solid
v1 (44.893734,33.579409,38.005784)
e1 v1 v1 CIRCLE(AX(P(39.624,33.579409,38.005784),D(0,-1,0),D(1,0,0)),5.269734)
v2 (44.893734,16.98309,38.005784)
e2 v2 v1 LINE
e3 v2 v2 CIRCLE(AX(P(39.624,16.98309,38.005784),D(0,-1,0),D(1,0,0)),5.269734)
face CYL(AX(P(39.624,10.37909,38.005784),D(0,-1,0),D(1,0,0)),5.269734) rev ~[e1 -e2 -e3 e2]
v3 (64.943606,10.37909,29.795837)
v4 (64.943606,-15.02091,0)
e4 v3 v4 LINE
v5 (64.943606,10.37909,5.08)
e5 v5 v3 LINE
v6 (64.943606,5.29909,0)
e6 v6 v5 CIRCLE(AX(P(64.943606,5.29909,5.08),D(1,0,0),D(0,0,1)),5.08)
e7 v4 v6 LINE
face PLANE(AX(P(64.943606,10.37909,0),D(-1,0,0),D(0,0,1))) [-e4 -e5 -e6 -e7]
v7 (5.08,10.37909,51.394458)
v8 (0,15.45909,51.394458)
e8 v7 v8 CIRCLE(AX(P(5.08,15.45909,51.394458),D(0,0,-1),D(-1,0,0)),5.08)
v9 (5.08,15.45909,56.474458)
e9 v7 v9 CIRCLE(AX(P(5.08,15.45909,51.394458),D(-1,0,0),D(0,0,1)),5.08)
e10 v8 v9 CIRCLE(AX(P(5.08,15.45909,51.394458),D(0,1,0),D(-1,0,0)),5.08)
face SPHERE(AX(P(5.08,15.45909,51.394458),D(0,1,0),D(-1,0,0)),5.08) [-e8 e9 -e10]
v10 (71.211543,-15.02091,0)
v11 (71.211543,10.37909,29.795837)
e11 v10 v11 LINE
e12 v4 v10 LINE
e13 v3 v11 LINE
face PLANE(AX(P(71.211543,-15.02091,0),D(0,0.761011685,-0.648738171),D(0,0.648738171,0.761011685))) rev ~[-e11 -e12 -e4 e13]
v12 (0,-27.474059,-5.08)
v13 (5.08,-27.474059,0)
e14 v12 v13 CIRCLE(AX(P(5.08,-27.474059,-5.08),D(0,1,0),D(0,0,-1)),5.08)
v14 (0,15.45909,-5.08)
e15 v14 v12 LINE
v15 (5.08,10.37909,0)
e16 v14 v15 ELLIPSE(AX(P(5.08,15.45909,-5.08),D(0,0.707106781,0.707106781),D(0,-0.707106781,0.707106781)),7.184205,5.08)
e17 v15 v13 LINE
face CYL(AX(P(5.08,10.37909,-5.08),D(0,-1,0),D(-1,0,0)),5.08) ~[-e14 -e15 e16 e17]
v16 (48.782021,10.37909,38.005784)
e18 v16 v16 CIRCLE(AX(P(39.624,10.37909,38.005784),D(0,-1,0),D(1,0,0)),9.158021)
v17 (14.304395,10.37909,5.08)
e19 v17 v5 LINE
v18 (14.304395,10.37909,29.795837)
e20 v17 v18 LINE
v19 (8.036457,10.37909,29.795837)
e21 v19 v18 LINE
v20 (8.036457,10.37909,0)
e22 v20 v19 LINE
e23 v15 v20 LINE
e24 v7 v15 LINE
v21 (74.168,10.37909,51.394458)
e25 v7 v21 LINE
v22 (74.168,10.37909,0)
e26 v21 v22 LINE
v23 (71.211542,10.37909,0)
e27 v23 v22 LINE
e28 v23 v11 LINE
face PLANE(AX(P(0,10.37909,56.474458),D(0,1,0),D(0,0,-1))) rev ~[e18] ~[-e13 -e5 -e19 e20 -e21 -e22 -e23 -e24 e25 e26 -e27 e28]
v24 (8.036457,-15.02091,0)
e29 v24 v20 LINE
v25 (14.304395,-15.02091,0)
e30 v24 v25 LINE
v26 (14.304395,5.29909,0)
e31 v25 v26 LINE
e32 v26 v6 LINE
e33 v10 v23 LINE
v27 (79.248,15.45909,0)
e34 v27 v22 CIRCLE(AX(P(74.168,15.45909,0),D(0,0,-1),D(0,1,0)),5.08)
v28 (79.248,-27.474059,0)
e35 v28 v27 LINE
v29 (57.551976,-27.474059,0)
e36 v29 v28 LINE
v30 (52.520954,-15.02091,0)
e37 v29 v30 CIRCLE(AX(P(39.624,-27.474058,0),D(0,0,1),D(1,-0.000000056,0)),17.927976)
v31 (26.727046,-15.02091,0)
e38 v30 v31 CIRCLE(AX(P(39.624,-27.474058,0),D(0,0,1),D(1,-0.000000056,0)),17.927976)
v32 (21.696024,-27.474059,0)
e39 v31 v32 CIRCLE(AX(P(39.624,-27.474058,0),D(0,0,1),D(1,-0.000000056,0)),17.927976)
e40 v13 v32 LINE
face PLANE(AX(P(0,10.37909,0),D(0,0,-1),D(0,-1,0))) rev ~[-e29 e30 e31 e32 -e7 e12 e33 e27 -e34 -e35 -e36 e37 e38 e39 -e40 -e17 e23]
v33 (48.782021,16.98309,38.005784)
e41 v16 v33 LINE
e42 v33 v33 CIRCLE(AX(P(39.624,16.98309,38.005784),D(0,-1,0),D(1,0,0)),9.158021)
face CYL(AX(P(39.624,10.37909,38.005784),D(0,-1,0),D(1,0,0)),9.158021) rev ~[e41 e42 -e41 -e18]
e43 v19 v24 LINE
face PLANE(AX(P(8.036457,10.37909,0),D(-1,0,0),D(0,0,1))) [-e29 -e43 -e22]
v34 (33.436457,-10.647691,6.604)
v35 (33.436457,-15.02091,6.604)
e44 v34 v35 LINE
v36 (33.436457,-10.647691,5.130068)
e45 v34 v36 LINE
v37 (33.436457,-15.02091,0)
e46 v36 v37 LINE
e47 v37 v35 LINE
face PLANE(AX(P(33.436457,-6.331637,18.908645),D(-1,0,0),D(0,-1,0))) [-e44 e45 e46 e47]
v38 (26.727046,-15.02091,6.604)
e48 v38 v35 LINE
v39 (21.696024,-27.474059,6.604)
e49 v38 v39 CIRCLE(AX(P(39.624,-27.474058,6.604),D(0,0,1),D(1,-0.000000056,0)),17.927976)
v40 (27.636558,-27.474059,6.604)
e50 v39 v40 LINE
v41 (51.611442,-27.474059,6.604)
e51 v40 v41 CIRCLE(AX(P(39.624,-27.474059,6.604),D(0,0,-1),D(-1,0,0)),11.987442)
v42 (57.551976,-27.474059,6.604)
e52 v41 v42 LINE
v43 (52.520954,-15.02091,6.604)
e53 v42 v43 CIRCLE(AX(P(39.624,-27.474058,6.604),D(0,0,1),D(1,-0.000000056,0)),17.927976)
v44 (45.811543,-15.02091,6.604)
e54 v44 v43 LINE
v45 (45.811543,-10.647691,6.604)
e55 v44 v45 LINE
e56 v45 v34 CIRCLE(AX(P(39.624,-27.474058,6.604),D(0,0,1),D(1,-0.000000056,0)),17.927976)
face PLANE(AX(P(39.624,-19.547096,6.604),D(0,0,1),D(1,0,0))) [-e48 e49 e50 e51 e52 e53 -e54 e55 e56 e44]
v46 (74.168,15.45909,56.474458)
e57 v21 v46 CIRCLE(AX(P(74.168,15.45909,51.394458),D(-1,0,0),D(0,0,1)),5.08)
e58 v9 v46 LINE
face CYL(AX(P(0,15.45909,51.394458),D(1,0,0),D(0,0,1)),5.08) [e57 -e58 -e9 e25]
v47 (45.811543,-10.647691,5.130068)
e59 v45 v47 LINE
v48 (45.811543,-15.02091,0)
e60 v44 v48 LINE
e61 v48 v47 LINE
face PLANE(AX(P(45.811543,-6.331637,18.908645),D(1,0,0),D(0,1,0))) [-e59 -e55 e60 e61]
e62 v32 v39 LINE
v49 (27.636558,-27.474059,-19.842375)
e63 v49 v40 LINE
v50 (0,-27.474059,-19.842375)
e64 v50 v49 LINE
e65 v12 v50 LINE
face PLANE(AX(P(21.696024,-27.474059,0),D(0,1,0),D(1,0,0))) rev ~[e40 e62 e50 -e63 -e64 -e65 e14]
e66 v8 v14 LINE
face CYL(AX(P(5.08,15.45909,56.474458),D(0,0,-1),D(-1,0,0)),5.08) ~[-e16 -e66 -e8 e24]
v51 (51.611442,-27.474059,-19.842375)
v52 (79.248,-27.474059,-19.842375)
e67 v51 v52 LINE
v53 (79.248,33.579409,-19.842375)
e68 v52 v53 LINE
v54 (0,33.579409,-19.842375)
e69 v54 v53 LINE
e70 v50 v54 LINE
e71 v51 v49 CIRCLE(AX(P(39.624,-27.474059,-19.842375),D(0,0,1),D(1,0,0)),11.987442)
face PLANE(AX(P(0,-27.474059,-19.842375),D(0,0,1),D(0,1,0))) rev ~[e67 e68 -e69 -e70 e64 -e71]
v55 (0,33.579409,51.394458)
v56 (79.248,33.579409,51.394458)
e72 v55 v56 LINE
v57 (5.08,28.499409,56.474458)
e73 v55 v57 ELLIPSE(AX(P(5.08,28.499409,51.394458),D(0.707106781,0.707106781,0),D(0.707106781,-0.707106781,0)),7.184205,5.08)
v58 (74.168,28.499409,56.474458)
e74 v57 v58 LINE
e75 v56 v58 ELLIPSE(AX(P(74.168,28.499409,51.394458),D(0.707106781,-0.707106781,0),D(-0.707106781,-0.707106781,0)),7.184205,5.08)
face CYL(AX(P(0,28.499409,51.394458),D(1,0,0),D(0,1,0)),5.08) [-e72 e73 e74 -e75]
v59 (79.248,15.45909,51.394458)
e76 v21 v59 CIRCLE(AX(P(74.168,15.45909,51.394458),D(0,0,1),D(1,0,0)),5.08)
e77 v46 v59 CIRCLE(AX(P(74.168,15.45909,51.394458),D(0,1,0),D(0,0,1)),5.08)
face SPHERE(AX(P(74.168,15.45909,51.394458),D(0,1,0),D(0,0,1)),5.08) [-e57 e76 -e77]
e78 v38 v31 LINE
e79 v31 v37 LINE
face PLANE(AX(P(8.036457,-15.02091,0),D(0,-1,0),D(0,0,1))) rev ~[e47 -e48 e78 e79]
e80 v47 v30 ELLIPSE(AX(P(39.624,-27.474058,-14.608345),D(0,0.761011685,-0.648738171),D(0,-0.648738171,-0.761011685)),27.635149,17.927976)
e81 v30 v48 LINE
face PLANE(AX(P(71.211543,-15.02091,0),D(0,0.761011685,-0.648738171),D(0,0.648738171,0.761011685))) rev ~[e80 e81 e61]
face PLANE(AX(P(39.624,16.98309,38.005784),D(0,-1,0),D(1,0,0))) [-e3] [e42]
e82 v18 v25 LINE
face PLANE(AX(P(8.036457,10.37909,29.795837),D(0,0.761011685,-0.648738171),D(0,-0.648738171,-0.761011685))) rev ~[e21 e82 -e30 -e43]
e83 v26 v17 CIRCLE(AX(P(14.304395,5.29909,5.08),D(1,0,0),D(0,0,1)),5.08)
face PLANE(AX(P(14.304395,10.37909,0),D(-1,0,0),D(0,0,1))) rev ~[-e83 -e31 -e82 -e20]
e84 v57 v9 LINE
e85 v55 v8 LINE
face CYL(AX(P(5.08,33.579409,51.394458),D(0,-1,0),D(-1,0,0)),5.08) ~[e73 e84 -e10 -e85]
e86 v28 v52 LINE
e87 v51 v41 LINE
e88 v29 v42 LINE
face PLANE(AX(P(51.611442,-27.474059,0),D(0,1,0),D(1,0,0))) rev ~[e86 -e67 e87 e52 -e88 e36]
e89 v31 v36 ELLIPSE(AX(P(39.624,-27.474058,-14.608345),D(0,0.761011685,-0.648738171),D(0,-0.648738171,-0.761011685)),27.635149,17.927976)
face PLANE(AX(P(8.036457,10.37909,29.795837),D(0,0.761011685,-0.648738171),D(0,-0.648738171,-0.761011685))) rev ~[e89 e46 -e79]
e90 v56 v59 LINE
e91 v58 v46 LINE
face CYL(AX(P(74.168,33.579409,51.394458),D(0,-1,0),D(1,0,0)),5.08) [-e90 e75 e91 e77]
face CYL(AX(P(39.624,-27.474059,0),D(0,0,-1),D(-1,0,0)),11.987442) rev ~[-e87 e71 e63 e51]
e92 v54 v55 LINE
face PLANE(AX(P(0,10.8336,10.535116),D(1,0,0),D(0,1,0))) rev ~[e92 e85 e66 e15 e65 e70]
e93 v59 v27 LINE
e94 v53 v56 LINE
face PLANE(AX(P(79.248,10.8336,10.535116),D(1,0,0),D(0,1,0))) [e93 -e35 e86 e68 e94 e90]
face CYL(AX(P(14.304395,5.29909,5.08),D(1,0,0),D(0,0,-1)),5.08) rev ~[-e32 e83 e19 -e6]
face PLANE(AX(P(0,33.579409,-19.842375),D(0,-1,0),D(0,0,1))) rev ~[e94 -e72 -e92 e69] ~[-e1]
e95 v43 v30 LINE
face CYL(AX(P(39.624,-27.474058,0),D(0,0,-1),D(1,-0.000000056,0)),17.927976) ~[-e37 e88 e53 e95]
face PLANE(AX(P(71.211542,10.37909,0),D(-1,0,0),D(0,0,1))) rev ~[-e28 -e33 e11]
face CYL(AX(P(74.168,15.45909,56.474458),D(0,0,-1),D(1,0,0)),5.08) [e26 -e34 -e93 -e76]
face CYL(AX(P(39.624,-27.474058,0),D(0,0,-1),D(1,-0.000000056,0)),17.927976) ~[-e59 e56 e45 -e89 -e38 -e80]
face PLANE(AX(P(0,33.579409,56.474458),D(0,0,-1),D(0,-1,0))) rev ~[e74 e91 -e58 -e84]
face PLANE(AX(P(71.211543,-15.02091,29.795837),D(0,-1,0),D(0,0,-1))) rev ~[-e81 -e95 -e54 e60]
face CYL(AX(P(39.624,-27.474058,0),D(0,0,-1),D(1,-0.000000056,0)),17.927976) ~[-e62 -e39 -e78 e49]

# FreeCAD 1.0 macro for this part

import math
import FreeCAD as App
import Part
import Sketcher

V = App.Vector
Q = App.Units.Quantity


def edges_at(feature, points):
    """Names of the edges that pass closest to the given points."""
    edges = feature.Shape.Edges
    near = lambda p: min(range(len(edges)), key=lambda i: edges[i].distToShape(Part.Vertex(*p))[0])
    return sorted({f"Edge{near(p) + 1}" for p in points})

doc = App.newDocument("Part")
body = doc.addObject("PartDesign::Body", "Body")

# Sketch on YZ plane
sketch1 = doc.addObject("Sketcher::SketchObject", "Sketch")
body.addObject(sketch1)
sketch1.AttachmentSupport = (doc.YZ_Plane, [""])
sketch1.MapMode = "FlatFace"
sketch1.addGeometry([
    Part.LineSegment(V(33.579409, 56.474458, 0), V(10.37909, 56.474458, 0)),  # 0
    Part.LineSegment(V(10.37909, 56.474458, 0), V(10.37909, 0, 0)),  # 1
    Part.LineSegment(V(10.37909, 0, 0), V(-27.474059, 0, 0)),  # 2
    Part.LineSegment(V(-27.474059, 0, 0), V(-27.474059, -19.842375, 0)),  # 3
    Part.LineSegment(V(-27.474059, -19.842375, 0), V(33.579409, -19.842375, 0)),  # 4
    Part.LineSegment(V(33.579409, -19.842375, 0), V(33.579409, 56.474458, 0)),  # 5
], False)
sketch1.addConstraint([
    Sketcher.Constraint("Coincident", 0, 2, 1, 1),
    Sketcher.Constraint("Coincident", 1, 2, 2, 1),
    Sketcher.Constraint("Coincident", 2, 2, 3, 1),
    Sketcher.Constraint("Coincident", 3, 2, 4, 1),
    Sketcher.Constraint("Coincident", 4, 2, 5, 1),
    Sketcher.Constraint("Coincident", 5, 2, 0, 1),
    Sketcher.Constraint("Horizontal", 0),
    Sketcher.Constraint("Vertical", 1),
    Sketcher.Constraint("Horizontal", 2),
    Sketcher.Constraint("Vertical", 3),
    Sketcher.Constraint("Horizontal", 4),
    Sketcher.Constraint("Vertical", 5),
    Sketcher.Constraint("PointOnObject", 1, 2, -1),
    Sketcher.Constraint("DistanceX", 0, 2, 0, 1, 23.200319),
    Sketcher.Constraint("DistanceX", 2, 2, 2, 1, 37.853149),
    Sketcher.Constraint("DistanceY", 1, 2, 1, 1, 56.474458),
    Sketcher.Constraint("DistanceY", 3, 2, 3, 1, 19.842375),
    Sketcher.Constraint("DistanceX", -1, 1, 0, 2, 10.37909),
])
pad1 = doc.addObject("PartDesign::Pad", "Pad")
body.addObject(pad1)
pad1.Profile = sketch1
pad1.Length = Q("3.12 in")

# Sketch on XZ plane
sketch2 = doc.addObject("Sketcher::SketchObject", "Sketch001")
body.addObject(sketch2)
sketch2.AttachmentSupport = (doc.XZ_Plane, [""])
sketch2.MapMode = "FlatFace"
sketch2.AttachmentOffset = App.Placement(V(0, 0, -10.37909), App.Rotation())
sketch2.addGeometry([
    Part.LineSegment(V(8.036457, 29.795837, 0), V(8.036457, 0, 0)),
    Part.LineSegment(V(8.036457, 0, 0), V(14.304395, 0, 0)),
    Part.LineSegment(V(14.304395, 0, 0), V(14.304395, 29.795837, 0)),
    Part.LineSegment(V(14.304395, 29.795837, 0), V(8.036457, 29.795837, 0)),
], False)
sketch2.addConstraint([
    Sketcher.Constraint("Coincident", 0, 2, 1, 1),
    Sketcher.Constraint("Coincident", 1, 2, 2, 1),
    Sketcher.Constraint("Coincident", 2, 2, 3, 1),
    Sketcher.Constraint("Coincident", 3, 2, 0, 1),
    Sketcher.Constraint("Vertical", 0),
    Sketcher.Constraint("Horizontal", 1),
    Sketcher.Constraint("Vertical", 2),
    Sketcher.Constraint("Horizontal", 3),
    Sketcher.Constraint("PointOnObject", 0, 2, -1),
    Sketcher.Constraint("DistanceX", 1, 1, 1, 2, 6.267937),
    Sketcher.Constraint("DistanceY", 0, 2, 0, 1, 29.795837),
    Sketcher.Constraint("DistanceX", -1, 1, 0, 2, 8.036457),
])
pad2 = doc.addObject("PartDesign::Pad", "Pad001")
body.addObject(pad2)
pad2.Profile = sketch2
pad2.Length = Q("1 in")

# Sketch on XZ plane
sketch3 = doc.addObject("Sketcher::SketchObject", "Sketch002")
body.addObject(sketch3)
sketch3.AttachmentSupport = (doc.XZ_Plane, [""])
sketch3.MapMode = "FlatFace"
sketch3.AttachmentOffset = App.Placement(V(0, 0, -10.37909), App.Rotation())
sketch3.addGeometry([
    Part.LineSegment(V(64.943606, 29.795837, 0), V(64.943606, 0, 0)),
    Part.LineSegment(V(64.943606, 0, 0), V(71.211542, 0, 0)),
    Part.LineSegment(V(71.211542, 0, 0), V(71.211542, 29.795837, 0)),
    Part.LineSegment(V(71.211542, 29.795837, 0), V(64.943606, 29.795837, 0)),
], False)
sketch3.addConstraint([
    Sketcher.Constraint("Coincident", 0, 2, 1, 1),
    Sketcher.Constraint("Coincident", 1, 2, 2, 1),
    Sketcher.Constraint("Coincident", 2, 2, 3, 1),
    Sketcher.Constraint("Coincident", 3, 2, 0, 1),
    Sketcher.Constraint("Vertical", 0),
    Sketcher.Constraint("Horizontal", 1),
    Sketcher.Constraint("Vertical", 2),
    Sketcher.Constraint("Horizontal", 3),
    Sketcher.Constraint("PointOnObject", 0, 2, -1),
    Sketcher.Constraint("DistanceX", 1, 1, 1, 2, 6.267937),
    Sketcher.Constraint("DistanceY", 0, 2, 0, 1, 29.795837),
    Sketcher.Constraint("DistanceX", -1, 1, 0, 2, 64.943606),
])
pad3 = doc.addObject("PartDesign::Pad", "Pad002")
body.addObject(pad3)
pad3.Profile = sketch3
pad3.Length = Q("1 in")

# Sketch on XY plane
sketch4 = doc.addObject("Sketcher::SketchObject", "Sketch003")
body.addObject(sketch4)
sketch4.AttachmentSupport = (doc.XY_Plane, [""])
sketch4.MapMode = "FlatFace"
sketch4.addGeometry([
    Part.ArcOfCircle(Part.Circle(V(39.624, -27.474059, 0), V(0, 0, 1), 11.987442), math.radians(0), math.radians(180)),
    Part.LineSegment(V(27.636558, -27.474059, 0), V(51.611442, -27.474059, 0)),
], False)
sketch4.addConstraint([
    Sketcher.Constraint("Coincident", 0, 1, 1, 2),
    Sketcher.Constraint("Coincident", 1, 1, 0, 2),
    Sketcher.Constraint("Horizontal", 1),
    Sketcher.Constraint("DistanceX", -1, 1, 0, 3, Q("1.56 in")),
    Sketcher.Constraint("Radius", 0, 11.987442),
    Sketcher.Constraint("DistanceY", 0, 3, -1, 1, 27.474059),
    Sketcher.Constraint("DistanceY", 0, 1, -1, 1, 27.474059),
])
pocket1 = doc.addObject("PartDesign::Pocket", "Pocket")
body.addObject(pocket1)
pocket1.Profile = sketch4
pocket1.Length = Q("1 in")

# Sketch on XY plane
sketch5 = doc.addObject("Sketcher::SketchObject", "Sketch004")
body.addObject(sketch5)
sketch5.AttachmentSupport = (doc.XY_Plane, [""])
sketch5.MapMode = "FlatFace"
sketch5.addGeometry([
    Part.LineSegment(V(21.696024, -27.474059, 0), V(27.636558, -27.474059, 0)),
    Part.ArcOfCircle(Part.Circle(V(39.624, -27.474059, 0), V(0, 0, 1), 11.987442), math.radians(0), math.radians(180)),
    Part.LineSegment(V(51.611442, -27.474059, 0), V(57.551976, -27.474059, 0)),
    Part.ArcOfCircle(Part.Circle(V(39.624, -27.474058, 0), V(0, 0, 1), 17.927976), math.radians(-0.000003), math.radians(180.000003)),
], False)
sketch5.addConstraint([
    Sketcher.Constraint("Coincident", 0, 2, 1, 2),
    Sketcher.Constraint("Coincident", 1, 1, 2, 1),
    Sketcher.Constraint("Coincident", 2, 2, 3, 1),
    Sketcher.Constraint("Coincident", 3, 2, 0, 1),
    Sketcher.Constraint("Horizontal", 0),
    Sketcher.Constraint("Horizontal", 2),
    Sketcher.Constraint("Coincident", 3, 3, 1, 3),
    Sketcher.Constraint("Horizontal", 3, 3, 0, 2),
    Sketcher.Constraint("Horizontal", 0, 2, 1, 1),
    Sketcher.Constraint("DistanceX", -1, 1, 1, 3, Q("1.56 in")),
    Sketcher.Constraint("Radius", 1, 11.987442),
    Sketcher.Constraint("Radius", 3, 17.927976),
    Sketcher.Constraint("DistanceY", 1, 3, -1, 1, 27.474059),
])
pad4 = doc.addObject("PartDesign::Pad", "Pad003")
body.addObject(pad4)
pad4.Profile = sketch5
pad4.Length = Q("0.26 in")

# Sketch on YZ plane
sketch6 = doc.addObject("Sketcher::SketchObject", "Sketch005")
body.addObject(sketch6)
sketch6.AttachmentSupport = (doc.YZ_Plane, [""])
sketch6.MapMode = "FlatFace"
sketch6.AttachmentOffset = App.Placement(V(0, 0, 71.211543), App.Rotation())
sketch6.addGeometry([
    Part.LineSegment(V(-15.02091, 0, 0), V(10.37909, 29.795837, 0)),
    Part.LineSegment(V(10.37909, 29.795837, 0), V(-15.02091, 29.795837, 0)),
    Part.LineSegment(V(-15.02091, 29.795837, 0), V(-15.02091, 0, 0)),
], False)
sketch6.addConstraint([
    Sketcher.Constraint("Coincident", 0, 2, 1, 1),
    Sketcher.Constraint("Coincident", 1, 2, 2, 1),
    Sketcher.Constraint("Coincident", 2, 2, 0, 1),
    Sketcher.Constraint("Horizontal", 1),
    Sketcher.Constraint("Vertical", 2),
    Sketcher.Constraint("PointOnObject", 2, 2, -1),
    Sketcher.Constraint("DistanceX", 1, 2, 1, 1, Q("1 in")),
    Sketcher.Constraint("Distance", 0, 39.15293),
    Sketcher.Constraint("DistanceX", -1, 1, 0, 2, 10.37909),
])
pocket2 = doc.addObject("PartDesign::Pocket", "Pocket001")
body.addObject(pocket2)
pocket2.Profile = sketch6
pocket2.Length = Q("1 in")

# Sketch on YZ plane
sketch7 = doc.addObject("Sketcher::SketchObject", "Sketch006")
body.addObject(sketch7)
sketch7.AttachmentSupport = (doc.YZ_Plane, [""])
sketch7.MapMode = "FlatFace"
sketch7.AttachmentOffset = App.Placement(V(0, 0, 8.036457), App.Rotation())
sketch7.addGeometry([
    Part.LineSegment(V(-15.02091, 29.795837, 0), V(10.37909, 29.795837, 0)),
    Part.LineSegment(V(10.37909, 29.795837, 0), V(-15.02091, 0, 0)),
    Part.LineSegment(V(-15.02091, 0, 0), V(-15.02091, 29.795837, 0)),
], False)
sketch7.addConstraint([
    Sketcher.Constraint("Coincident", 0, 2, 1, 1),
    Sketcher.Constraint("Coincident", 1, 2, 2, 1),
    Sketcher.Constraint("Coincident", 2, 2, 0, 1),
    Sketcher.Constraint("Horizontal", 0),
    Sketcher.Constraint("Vertical", 2),
    Sketcher.Constraint("PointOnObject", 1, 2, -1),
    Sketcher.Constraint("DistanceX", 0, 1, 0, 2, Q("1 in")),
    Sketcher.Constraint("Distance", 1, 39.15293),
    Sketcher.Constraint("DistanceX", -1, 1, 0, 2, 10.37909),
])
pocket3 = doc.addObject("PartDesign::Pocket", "Pocket002")
body.addObject(pocket3)
pocket3.Profile = sketch7
pocket3.Length = Q("1 in")
pocket3.Reversed = True

# Sketch on XZ plane
sketch8 = doc.addObject("Sketcher::SketchObject", "Sketch007")
body.addObject(sketch8)
sketch8.AttachmentSupport = (doc.XZ_Plane, [""])
sketch8.MapMode = "FlatFace"
sketch8.AttachmentOffset = App.Placement(V(0, 0, -10.37909), App.Rotation())
sketch8.addGeometry(Part.Circle(V(39.624, 38.005784, 0), V(0, 0, 1), 5.269734), False)
sketch8.addConstraint([
    Sketcher.Constraint("DistanceX", -1, 1, 0, 3, Q("1.56 in")),
    Sketcher.Constraint("Diameter", 0, 10.539468),
    Sketcher.Constraint("DistanceY", -1, 1, 0, 3, 38.005784),
])
pocket4 = doc.addObject("PartDesign::Pocket", "Pocket003")
body.addObject(pocket4)
pocket4.Profile = sketch8
pocket4.Length = Q("1 in")

# Sketch on XZ plane
sketch9 = doc.addObject("Sketcher::SketchObject", "Sketch008")
body.addObject(sketch9)
sketch9.AttachmentSupport = (doc.XZ_Plane, [""])
sketch9.MapMode = "FlatFace"
sketch9.AttachmentOffset = App.Placement(V(0, 0, -10.37909), App.Rotation())
sketch9.addGeometry([
    Part.Circle(V(39.624, 38.005784, 0), V(0, 0, 1), 9.158021),
    Part.Circle(V(39.624, 38.005784, 0), V(0, 0, 1), 5.269734),
], False)
sketch9.addConstraint([
    Sketcher.Constraint("Coincident", 1, 3, 0, 3),
    Sketcher.Constraint("DistanceX", -1, 1, 0, 3, Q("1.56 in")),
    Sketcher.Constraint("Diameter", 0, 18.316042),
    Sketcher.Constraint("Diameter", 1, 10.539468),
    Sketcher.Constraint("DistanceY", -1, 1, 0, 3, 38.005784),
])
pocket5 = doc.addObject("PartDesign::Pocket", "Pocket004")
body.addObject(pocket5)
pocket5.Profile = sketch9
pocket5.Length = Q("0.26 in")
doc.recompute()

fillet = doc.addObject("PartDesign::Fillet", "Fillet")
body.addObject(fillet)
fillet.Base = (pocket5, edges_at(pocket5, [
    (0, 21.979, 56.474),
    (79.248, 21.979, 56.474),
    (0, -8.547, 0),
    (0, 10.379, 28.237),
    (39.624, 10.379, 56.474),
    (39.624, 33.579, 56.474),
    (79.248, 10.379, 28.237),
    (39.624, 10.379, 0),
]))
fillet.Radius = Q("0.2 in")

doc.recompute()
